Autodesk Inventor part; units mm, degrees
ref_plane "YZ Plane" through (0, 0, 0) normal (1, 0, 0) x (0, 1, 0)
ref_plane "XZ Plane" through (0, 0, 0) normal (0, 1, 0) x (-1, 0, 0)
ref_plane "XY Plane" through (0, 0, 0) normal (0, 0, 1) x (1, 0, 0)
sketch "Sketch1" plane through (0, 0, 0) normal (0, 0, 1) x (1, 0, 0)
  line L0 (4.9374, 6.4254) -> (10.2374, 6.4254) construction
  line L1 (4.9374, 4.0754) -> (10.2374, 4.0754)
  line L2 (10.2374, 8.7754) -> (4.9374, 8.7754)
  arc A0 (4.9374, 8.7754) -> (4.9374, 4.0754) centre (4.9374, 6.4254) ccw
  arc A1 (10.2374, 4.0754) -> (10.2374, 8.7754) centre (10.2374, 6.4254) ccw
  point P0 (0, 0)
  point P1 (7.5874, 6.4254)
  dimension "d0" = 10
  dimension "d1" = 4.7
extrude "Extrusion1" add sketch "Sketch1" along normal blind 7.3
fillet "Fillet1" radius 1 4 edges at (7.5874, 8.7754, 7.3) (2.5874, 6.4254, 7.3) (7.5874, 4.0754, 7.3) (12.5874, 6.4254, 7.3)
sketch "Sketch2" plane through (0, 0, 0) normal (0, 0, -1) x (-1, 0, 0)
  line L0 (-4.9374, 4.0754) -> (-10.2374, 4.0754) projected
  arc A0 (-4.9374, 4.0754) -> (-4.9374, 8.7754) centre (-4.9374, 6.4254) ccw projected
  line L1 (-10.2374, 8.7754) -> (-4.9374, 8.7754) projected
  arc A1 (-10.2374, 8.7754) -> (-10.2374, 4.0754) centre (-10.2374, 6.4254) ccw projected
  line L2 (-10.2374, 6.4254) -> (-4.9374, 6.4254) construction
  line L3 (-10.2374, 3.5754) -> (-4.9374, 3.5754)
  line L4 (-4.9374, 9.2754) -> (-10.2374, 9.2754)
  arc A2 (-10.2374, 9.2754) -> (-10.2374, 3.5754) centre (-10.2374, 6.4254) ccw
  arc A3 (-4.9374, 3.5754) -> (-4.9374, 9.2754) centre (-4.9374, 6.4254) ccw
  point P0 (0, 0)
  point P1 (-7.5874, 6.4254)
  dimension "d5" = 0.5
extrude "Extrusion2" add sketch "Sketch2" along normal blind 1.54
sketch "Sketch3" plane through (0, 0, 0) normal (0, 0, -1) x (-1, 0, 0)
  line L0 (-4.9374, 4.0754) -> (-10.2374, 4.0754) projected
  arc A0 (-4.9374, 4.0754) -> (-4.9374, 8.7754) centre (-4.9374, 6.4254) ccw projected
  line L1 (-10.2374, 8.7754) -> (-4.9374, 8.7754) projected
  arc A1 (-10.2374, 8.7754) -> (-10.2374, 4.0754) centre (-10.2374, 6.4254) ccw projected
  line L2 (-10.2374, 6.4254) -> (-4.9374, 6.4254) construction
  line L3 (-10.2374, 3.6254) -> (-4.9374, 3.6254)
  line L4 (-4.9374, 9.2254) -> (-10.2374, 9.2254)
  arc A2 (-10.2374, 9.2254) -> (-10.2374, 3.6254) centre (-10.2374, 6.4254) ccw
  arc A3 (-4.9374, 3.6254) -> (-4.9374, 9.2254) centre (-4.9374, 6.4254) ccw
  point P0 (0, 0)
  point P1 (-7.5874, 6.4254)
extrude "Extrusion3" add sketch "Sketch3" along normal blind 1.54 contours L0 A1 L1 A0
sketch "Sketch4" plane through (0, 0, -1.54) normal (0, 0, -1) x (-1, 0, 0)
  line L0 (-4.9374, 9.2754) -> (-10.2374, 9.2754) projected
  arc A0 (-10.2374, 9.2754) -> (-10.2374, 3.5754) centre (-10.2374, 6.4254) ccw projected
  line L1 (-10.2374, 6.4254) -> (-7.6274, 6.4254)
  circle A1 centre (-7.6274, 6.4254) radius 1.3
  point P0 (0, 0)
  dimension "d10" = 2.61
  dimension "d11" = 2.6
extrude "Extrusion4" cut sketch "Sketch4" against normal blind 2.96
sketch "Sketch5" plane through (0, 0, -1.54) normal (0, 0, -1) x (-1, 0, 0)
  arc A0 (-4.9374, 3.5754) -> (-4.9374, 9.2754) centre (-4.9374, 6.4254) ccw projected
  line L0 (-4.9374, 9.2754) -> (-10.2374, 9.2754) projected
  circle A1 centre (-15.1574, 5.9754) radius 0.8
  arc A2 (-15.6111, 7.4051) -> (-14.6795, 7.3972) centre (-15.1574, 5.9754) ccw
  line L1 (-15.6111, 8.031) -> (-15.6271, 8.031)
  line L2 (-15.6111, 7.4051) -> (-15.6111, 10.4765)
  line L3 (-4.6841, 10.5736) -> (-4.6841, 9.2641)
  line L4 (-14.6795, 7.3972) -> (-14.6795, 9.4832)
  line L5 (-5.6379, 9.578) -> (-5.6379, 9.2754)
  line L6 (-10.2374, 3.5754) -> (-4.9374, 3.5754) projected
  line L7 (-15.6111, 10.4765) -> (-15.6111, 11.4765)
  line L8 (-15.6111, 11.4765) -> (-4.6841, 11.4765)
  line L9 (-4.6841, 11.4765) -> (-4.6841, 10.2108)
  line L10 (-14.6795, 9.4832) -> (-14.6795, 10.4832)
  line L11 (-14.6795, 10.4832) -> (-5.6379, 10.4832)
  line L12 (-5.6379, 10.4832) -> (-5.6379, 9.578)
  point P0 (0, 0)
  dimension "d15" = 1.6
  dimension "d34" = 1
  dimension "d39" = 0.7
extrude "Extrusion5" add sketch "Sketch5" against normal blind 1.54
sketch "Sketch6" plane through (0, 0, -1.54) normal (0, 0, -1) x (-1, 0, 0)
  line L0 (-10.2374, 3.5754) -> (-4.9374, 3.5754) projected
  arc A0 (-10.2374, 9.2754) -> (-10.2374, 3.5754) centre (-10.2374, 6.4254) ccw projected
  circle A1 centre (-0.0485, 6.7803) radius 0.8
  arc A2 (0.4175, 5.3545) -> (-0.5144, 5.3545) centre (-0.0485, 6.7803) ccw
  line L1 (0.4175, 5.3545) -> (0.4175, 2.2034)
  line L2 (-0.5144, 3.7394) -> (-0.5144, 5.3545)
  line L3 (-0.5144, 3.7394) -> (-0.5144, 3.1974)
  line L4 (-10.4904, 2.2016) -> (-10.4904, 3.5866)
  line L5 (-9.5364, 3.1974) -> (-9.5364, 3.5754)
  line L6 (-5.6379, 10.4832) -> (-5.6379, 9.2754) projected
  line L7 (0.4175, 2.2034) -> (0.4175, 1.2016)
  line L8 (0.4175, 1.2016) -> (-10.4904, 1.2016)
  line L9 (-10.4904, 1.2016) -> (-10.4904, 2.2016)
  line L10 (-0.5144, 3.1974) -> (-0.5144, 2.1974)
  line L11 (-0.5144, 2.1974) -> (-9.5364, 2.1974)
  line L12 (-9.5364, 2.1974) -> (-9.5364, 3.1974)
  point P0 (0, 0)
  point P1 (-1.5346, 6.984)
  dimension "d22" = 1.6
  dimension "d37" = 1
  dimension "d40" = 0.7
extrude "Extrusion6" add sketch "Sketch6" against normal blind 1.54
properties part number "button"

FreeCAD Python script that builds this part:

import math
import FreeCAD as App
import Part
import Sketcher
from FreeCAD import Vector


def edges_at(feature, points):
    """Names of the edges that pass closest to the given points."""
    edges = feature.Shape.Edges
    near = lambda p: min(range(len(edges)), key=lambda i: edges[i].distToShape(Part.Vertex(*p))[0])
    return sorted({f"Edge{near(p) + 1}" for p in points})

doc = App.newDocument("Part")
body = doc.addObject("PartDesign::Body", "Body")
body.AllowCompound = True

# Sketch on XY plane
sketch1 = body.newObject("Sketcher::SketchObject", "Sketch")
sketch1.AttachmentSupport = (doc.getObject("XY_Plane"), [""])
sketch1.MapMode = "FlatFace"
sketch1.addGeometry(Part.ArcOfCircle(Part.Circle(Vector(4.9, 6.4, 0), Vector(0, 0, 1), 2.3), math.radians(90), math.radians(270)), False)
sketch1.addGeometry(Part.LineSegment(Vector(4.9, 4.1, 0), Vector(10.2, 4.1, 0)), False)
sketch1.addGeometry(Part.ArcOfCircle(Part.Circle(Vector(10.2, 6.4, 0), Vector(0, 0, 1), 2.3), math.radians(-90), math.radians(90)), False)
sketch1.addGeometry(Part.LineSegment(Vector(10.2, 8.8, 0), Vector(4.9, 8.8, 0)), False)
sketch1.addConstraint(Sketcher.Constraint("Tangent", 0, 2, 1, 1))
sketch1.addConstraint(Sketcher.Constraint("Tangent", 1, 2, 2, 1))
sketch1.addConstraint(Sketcher.Constraint("Tangent", 2, 2, 3, 1))
sketch1.addConstraint(Sketcher.Constraint("Tangent", 3, 2, 0, 1))
sketch1.addConstraint(Sketcher.Constraint("Horizontal", 1))
sketch1.addConstraint(Sketcher.Constraint("Horizontal", 3))
sketch1.addConstraint(Sketcher.Constraint("Radius", 0, 2.35))
sketch1.addConstraint(Sketcher.Constraint("DistanceX", 1, 1, 1, 2, 5.3))
sketch1.addConstraint(Sketcher.Constraint("DistanceX", -1, 1, 0, 3, 4.9374))
sketch1.addConstraint(Sketcher.Constraint("DistanceY", -1, 1, 0, 3, 6.4254))
pad1 = body.newObject("PartDesign::Pad", "Pad")
pad1.Profile = sketch1
pad1.Length = 7.3
doc.recompute()

fillet = body.newObject("PartDesign::Fillet", "Fillet")
fillet.Base = (pad1, edges_at(pad1, [
    (7.587, 8.775, 7.3),
    (2.587, 6.425, 7.3),
    (7.587, 4.075, 7.3),
    (12.587, 6.425, 7.3),
]))
fillet.Radius = 1

# Sketch on XY plane
sketch2 = body.newObject("Sketcher::SketchObject", "Sketch001")
sketch2.AttachmentSupport = (doc.getObject("XY_Plane"), [""])
sketch2.MapMode = "FlatFace"
sketch2.addGeometry(Part.ArcOfCircle(Part.Circle(Vector(10.2, 6.4, 0), Vector(0, 0, 1), 2.8), math.radians(-90), math.radians(90)), False)
sketch2.addGeometry(Part.LineSegment(Vector(10.2, 3.6, 0), Vector(4.9, 3.6, 0)), False)
sketch2.addGeometry(Part.ArcOfCircle(Part.Circle(Vector(4.9, 6.4, 0), Vector(0, 0, 1), 2.8), math.radians(90), math.radians(270)), False)
sketch2.addGeometry(Part.LineSegment(Vector(4.9, 9.3, 0), Vector(10.2, 9.3, 0)), False)
sketch2.addGeometry(Part.ArcOfCircle(Part.Circle(Vector(4.9, 6.4, 0), Vector(0, 0, 1), 2.3), math.radians(90), math.radians(270)), False)
sketch2.addGeometry(Part.LineSegment(Vector(4.9, 4.1, 0), Vector(10.2, 4.1, 0)), False)
sketch2.addGeometry(Part.ArcOfCircle(Part.Circle(Vector(10.2, 6.4, 0), Vector(0, 0, 1), 2.3), math.radians(-90), math.radians(90)), False)
sketch2.addGeometry(Part.LineSegment(Vector(10.2, 8.8, 0), Vector(4.9, 8.8, 0)), False)
sketch2.addConstraint(Sketcher.Constraint("Tangent", 0, 1, 1, 1))
sketch2.addConstraint(Sketcher.Constraint("Tangent", 1, 2, 2, 2))
sketch2.addConstraint(Sketcher.Constraint("Tangent", 2, 1, 3, 1))
sketch2.addConstraint(Sketcher.Constraint("Tangent", 3, 2, 0, 2))
sketch2.addConstraint(Sketcher.Constraint("Tangent", 4, 2, 5, 1))
sketch2.addConstraint(Sketcher.Constraint("Tangent", 5, 2, 6, 1))
sketch2.addConstraint(Sketcher.Constraint("Tangent", 6, 2, 7, 1))
sketch2.addConstraint(Sketcher.Constraint("Tangent", 7, 2, 4, 1))
sketch2.addConstraint(Sketcher.Constraint("Horizontal", 1))
sketch2.addConstraint(Sketcher.Constraint("Horizontal", 3))
sketch2.addConstraint(Sketcher.Constraint("Horizontal", 5))
sketch2.addConstraint(Sketcher.Constraint("Horizontal", 7))
sketch2.addConstraint(Sketcher.Constraint("Coincident", 4, 3, 2, 3))
sketch2.addConstraint(Sketcher.Constraint("Vertical", 6, 3, 0, 1))
sketch2.addConstraint(Sketcher.Constraint("DistanceY", 1, 2, 4, 2, 0.5))
sketch2.addConstraint(Sketcher.Constraint("Radius", 0, 2.85))
sketch2.addConstraint(Sketcher.Constraint("DistanceX", 1, 2, 1, 1, 5.3))
sketch2.addConstraint(Sketcher.Constraint("DistanceX", -1, 1, 0, 3, 10.2374))
sketch2.addConstraint(Sketcher.Constraint("DistanceY", -1, 1, 0, 3, 6.4254))
pad2 = body.newObject("PartDesign::Pad", "Pad001")
pad2.Profile = sketch2
pad2.Length = 1.54
pad2.Reversed = True

# Sketch on XY plane
sketch3 = body.newObject("Sketcher::SketchObject", "Sketch002")
sketch3.AttachmentSupport = (doc.getObject("XY_Plane"), [""])
sketch3.MapMode = "FlatFace"
sketch3.addGeometry(Part.LineSegment(Vector(10.2, 4.1, 0), Vector(4.9, 4.1, 0)), False)
sketch3.addGeometry(Part.ArcOfCircle(Part.Circle(Vector(4.9, 6.4, 0), Vector(0, 0, 1), 2.3), math.radians(90), math.radians(270)), False)
sketch3.addGeometry(Part.LineSegment(Vector(4.9, 8.8, 0), Vector(10.2, 8.8, 0)), False)
sketch3.addGeometry(Part.ArcOfCircle(Part.Circle(Vector(10.2, 6.4, 0), Vector(0, 0, 1), 2.3), math.radians(-90), math.radians(90)), False)
sketch3.addConstraint(Sketcher.Constraint("Tangent", 0, 2, 1, 2))
sketch3.addConstraint(Sketcher.Constraint("Tangent", 1, 1, 2, 1))
sketch3.addConstraint(Sketcher.Constraint("Tangent", 2, 2, 3, 2))
sketch3.addConstraint(Sketcher.Constraint("Tangent", 3, 1, 0, 1))
sketch3.addConstraint(Sketcher.Constraint("Horizontal", 0))
sketch3.addConstraint(Sketcher.Constraint("Horizontal", 2))
sketch3.addConstraint(Sketcher.Constraint("Radius", 1, 2.35))
sketch3.addConstraint(Sketcher.Constraint("DistanceX", 0, 2, 0, 1, 5.3))
sketch3.addConstraint(Sketcher.Constraint("DistanceX", -1, 1, 1, 3, 4.9374))
sketch3.addConstraint(Sketcher.Constraint("DistanceY", -1, 1, 1, 3, 6.4254))
pad3 = body.newObject("PartDesign::Pad", "Pad002")
pad3.Profile = sketch3
pad3.Length = 1.54
pad3.Reversed = True

# Sketch on XY plane
sketch4 = body.newObject("Sketcher::SketchObject", "Sketch003")
sketch4.AttachmentSupport = (doc.getObject("XY_Plane"), [""])
sketch4.MapMode = "FlatFace"
sketch4.AttachmentOffset = App.Placement(Vector(0, 0, -1.54), App.Rotation())
sketch4.addGeometry(Part.Circle(Vector(7.6, 6.4, 0), Vector(0, 0, 1), 1.3), False)
sketch4.addConstraint(Sketcher.Constraint("Diameter", 0, 2.6))
sketch4.addConstraint(Sketcher.Constraint("DistanceX", -1, 1, 0, 3, 7.6274))
sketch4.addConstraint(Sketcher.Constraint("DistanceY", -1, 1, 0, 3, 6.4254))
pocket1 = body.newObject("PartDesign::Pocket", "Pocket")
pocket1.Profile = sketch4
pocket1.Length = 2.96
pocket1.Reversed = True

# Sketch on XY plane
sketch5 = body.newObject("Sketcher::SketchObject", "Sketch004")
sketch5.AttachmentSupport = (doc.getObject("XY_Plane"), [""])
sketch5.MapMode = "FlatFace"
sketch5.AttachmentOffset = App.Placement(Vector(0, 0, -1.54), App.Rotation())
sketch5.addGeometry(Part.ArcOfCircle(Part.Circle(Vector(4.94, 6.43, 0), Vector(0, 0, 1), 2.85), math.radians(90), math.radians(95.1)), False)
sketch5.addGeometry(Part.LineSegment(Vector(4.68, 9.26, 0), Vector(4.68, 11.48, 0)), False)
sketch5.addGeometry(Part.LineSegment(Vector(4.68, 11.48, 0), Vector(15.61, 11.48, 0)), False)
sketch5.addGeometry(Part.LineSegment(Vector(15.61, 11.48, 0), Vector(15.61, 7.41, 0)), False)
sketch5.addGeometry(Part.ArcOfCircle(Part.Circle(Vector(15.16, 5.98, 0), Vector(0, 0, 1), 1.5), math.radians(109), math.radians(432)), False)
sketch5.addGeometry(Part.LineSegment(Vector(14.68, 7.4, 0), Vector(14.68, 10.48, 0)), False)
sketch5.addGeometry(Part.LineSegment(Vector(14.68, 10.48, 0), Vector(5.64, 10.48, 0)), False)
sketch5.addGeometry(Part.LineSegment(Vector(5.64, 10.48, 0), Vector(5.64, 9.28, 0)), False)
sketch5.addGeometry(Part.LineSegment(Vector(5.64, 9.28, 0), Vector(4.94, 9.28, 0)), False)
sketch5.addGeometry(Part.Circle(Vector(15.16, 5.98, 0), Vector(0, 0, 1), 0.8), False)
sketch5.addConstraint(Sketcher.Constraint("Coincident", 0, 2, 1, 1))
sketch5.addConstraint(Sketcher.Constraint("Coincident", 1, 2, 2, 1))
sketch5.addConstraint(Sketcher.Constraint("Coincident", 2, 2, 3, 1))
sketch5.addConstraint(Sketcher.Constraint("Coincident", 3, 2, 4, 2))
sketch5.addConstraint(Sketcher.Constraint("Coincident", 4, 1, 5, 1))
sketch5.addConstraint(Sketcher.Constraint("Coincident", 5, 2, 6, 1))
sketch5.addConstraint(Sketcher.Constraint("Coincident", 6, 2, 7, 1))
sketch5.addConstraint(Sketcher.Constraint("Coincident", 7, 2, 8, 1))
sketch5.addConstraint(Sketcher.Constraint("Tangent", 8, 2, 0, 1))
sketch5.addConstraint(Sketcher.Constraint("Vertical", 1))
sketch5.addConstraint(Sketcher.Constraint("Horizontal", 2))
sketch5.addConstraint(Sketcher.Constraint("Vertical", 3))
sketch5.addConstraint(Sketcher.Constraint("Vertical", 5))
sketch5.addConstraint(Sketcher.Constraint("Horizontal", 6))
sketch5.addConstraint(Sketcher.Constraint("Vertical", 7))
sketch5.addConstraint(Sketcher.Constraint("Horizontal", 8))
sketch5.addConstraint(Sketcher.Constraint("Coincident", 9, 3, 4, 3))
sketch5.addConstraint(Sketcher.Constraint("Diameter", 9, 1.6))
sketch5.addConstraint(Sketcher.Constraint("Radius", 4, 1.5))
sketch5.addConstraint(Sketcher.Constraint("Radius", 0, 2.85))
sketch5.addConstraint(Sketcher.Constraint("DistanceX", 8, 2, 8, 1, 0.7005))
sketch5.addConstraint(Sketcher.Constraint("DistanceX", 2, 1, 2, 2, 10.927))
sketch5.addConstraint(Sketcher.Constraint("DistanceY", 5, 1, 5, 2, 3.086))
sketch5.addConstraint(Sketcher.Constraint("DistanceX", 0, 3, 4, 3, 10.22))
sketch5.addConstraint(Sketcher.Constraint("DistanceY", 4, 3, 0, 3, 0.45))
sketch5.addConstraint(Sketcher.Constraint("DistanceX", 6, 2, 6, 1, 9.0416))
sketch5.addConstraint(Sketcher.Constraint("DistanceY", 1, 1, 1, 2, 2.2124))
sketch5.addConstraint(Sketcher.Constraint("DistanceY", 3, 2, 3, 1, 4.0714))
sketch5.addConstraint(Sketcher.Constraint("DistanceX", -1, 1, 0, 2, 4.684))
sketch5.addConstraint(Sketcher.Constraint("DistanceY", -1, 1, 3, 2, 7.405))
pad4 = body.newObject("PartDesign::Pad", "Pad003")
pad4.Profile = sketch5
pad4.Length = 1.54

# Sketch on XY plane
sketch6 = body.newObject("Sketcher::SketchObject", "Sketch005")
sketch6.AttachmentSupport = (doc.getObject("XY_Plane"), [""])
sketch6.MapMode = "FlatFace"
sketch6.AttachmentOffset = App.Placement(Vector(0, 0, -1.54), App.Rotation())
sketch6.addGeometry(Part.LineSegment(Vector(9.5364, 3.5754, 0), Vector(10.2374, 3.5754, 0)), False)
sketch6.addGeometry(Part.ArcOfCircle(Part.Circle(Vector(10.2374, 6.4254, 0), Vector(0, 0, 1), 2.85), math.radians(-90), math.radians(-84.907131)), False)
sketch6.addGeometry(Part.LineSegment(Vector(10.4904, 3.5866, 0), Vector(10.4904, 1.2016, 0)), False)
sketch6.addGeometry(Part.LineSegment(Vector(10.4904, 1.2016, 0), Vector(-0.4175, 1.2016, 0)), False)
sketch6.addGeometry(Part.LineSegment(Vector(-0.4175, 1.2016, 0), Vector(-0.4175, 5.3545, 0)), False)
sketch6.addGeometry(Part.ArcOfCircle(Part.Circle(Vector(0.0485, 6.7803, 0), Vector(0, 0, 1), 1.500021), math.radians(-71.904476), math.radians(251.900845)), False)
sketch6.addGeometry(Part.LineSegment(Vector(0.5144, 5.3545, 0), Vector(0.5144, 2.1974, 0)), False)
sketch6.addGeometry(Part.LineSegment(Vector(0.5144, 2.1974, 0), Vector(9.5364, 2.1974, 0)), False)
sketch6.addGeometry(Part.LineSegment(Vector(9.5364, 2.1974, 0), Vector(9.5364, 3.5754, 0)), False)
sketch6.addGeometry(Part.Circle(Vector(0.0485, 6.7803, 0), Vector(0, 0, 1), 0.8), False)
sketch6.addConstraint(Sketcher.Constraint("Coincident", 0, 2, 1, 1))
sketch6.addConstraint(Sketcher.Constraint("Coincident", 1, 2, 2, 1))
sketch6.addConstraint(Sketcher.Constraint("Coincident", 2, 2, 3, 1))
sketch6.addConstraint(Sketcher.Constraint("Coincident", 3, 2, 4, 1))
sketch6.addConstraint(Sketcher.Constraint("Coincident", 4, 2, 5, 2))
sketch6.addConstraint(Sketcher.Constraint("Coincident", 5, 1, 6, 1))
sketch6.addConstraint(Sketcher.Constraint("Coincident", 6, 2, 7, 1))
sketch6.addConstraint(Sketcher.Constraint("Coincident", 7, 2, 8, 1))
sketch6.addConstraint(Sketcher.Constraint("Coincident", 8, 2, 0, 1))
sketch6.addConstraint(Sketcher.Constraint("Horizontal", 0))
sketch6.addConstraint(Sketcher.Constraint("Vertical", 2))
sketch6.addConstraint(Sketcher.Constraint("Horizontal", 3))
sketch6.addConstraint(Sketcher.Constraint("Vertical", 4))
sketch6.addConstraint(Sketcher.Constraint("Vertical", 6))
sketch6.addConstraint(Sketcher.Constraint("Horizontal", 7))
sketch6.addConstraint(Sketcher.Constraint("Vertical", 8))
sketch6.addConstraint(Sketcher.Constraint("Coincident", 9, 3, 5, 3))
sketch6.addConstraint(Sketcher.Constraint("Diameter", 9, 1.6))
sketch6.addConstraint(Sketcher.Constraint("Radius", 5, 1.5))
sketch6.addConstraint(Sketcher.Constraint("Radius", 1, 2.85))
sketch6.addConstraint(Sketcher.Constraint("DistanceX", 0, 1, 0, 2, 0.701))
sketch6.addConstraint(Sketcher.Constraint("DistanceX", 3, 2, 3, 1, 10.908))
sketch6.addConstraint(Sketcher.Constraint("DistanceX", 7, 1, 7, 2, 9.022))
sketch6.addConstraint(Sketcher.Constraint("DistanceY", 2, 2, 2, 1, 2.385))
sketch6.addConstraint(Sketcher.Constraint("DistanceY", 4, 1, 4, 2, 4.153))
sketch6.addConstraint(Sketcher.Constraint("DistanceY", 6, 2, 6, 1, 3.157))
sketch6.addConstraint(Sketcher.Constraint("DistanceY", 8, 1, 8, 2, 1.378))
sketch6.addConstraint(Sketcher.Constraint("DistanceX", 5, 3, 1, 3, 10.189))
sketch6.addConstraint(Sketcher.Constraint("DistanceY", 1, 3, 5, 3, 0.355))
sketch6.addConstraint(Sketcher.Constraint("DistanceX", -1, 1, 1, 3, 10.2374))
sketch6.addConstraint(Sketcher.Constraint("DistanceY", -1, 1, 1, 3, 6.4254))
pad5 = body.newObject("PartDesign::Pad", "Pad004")
pad5.Profile = sketch6
pad5.Length = 1.54

doc.recompute()
